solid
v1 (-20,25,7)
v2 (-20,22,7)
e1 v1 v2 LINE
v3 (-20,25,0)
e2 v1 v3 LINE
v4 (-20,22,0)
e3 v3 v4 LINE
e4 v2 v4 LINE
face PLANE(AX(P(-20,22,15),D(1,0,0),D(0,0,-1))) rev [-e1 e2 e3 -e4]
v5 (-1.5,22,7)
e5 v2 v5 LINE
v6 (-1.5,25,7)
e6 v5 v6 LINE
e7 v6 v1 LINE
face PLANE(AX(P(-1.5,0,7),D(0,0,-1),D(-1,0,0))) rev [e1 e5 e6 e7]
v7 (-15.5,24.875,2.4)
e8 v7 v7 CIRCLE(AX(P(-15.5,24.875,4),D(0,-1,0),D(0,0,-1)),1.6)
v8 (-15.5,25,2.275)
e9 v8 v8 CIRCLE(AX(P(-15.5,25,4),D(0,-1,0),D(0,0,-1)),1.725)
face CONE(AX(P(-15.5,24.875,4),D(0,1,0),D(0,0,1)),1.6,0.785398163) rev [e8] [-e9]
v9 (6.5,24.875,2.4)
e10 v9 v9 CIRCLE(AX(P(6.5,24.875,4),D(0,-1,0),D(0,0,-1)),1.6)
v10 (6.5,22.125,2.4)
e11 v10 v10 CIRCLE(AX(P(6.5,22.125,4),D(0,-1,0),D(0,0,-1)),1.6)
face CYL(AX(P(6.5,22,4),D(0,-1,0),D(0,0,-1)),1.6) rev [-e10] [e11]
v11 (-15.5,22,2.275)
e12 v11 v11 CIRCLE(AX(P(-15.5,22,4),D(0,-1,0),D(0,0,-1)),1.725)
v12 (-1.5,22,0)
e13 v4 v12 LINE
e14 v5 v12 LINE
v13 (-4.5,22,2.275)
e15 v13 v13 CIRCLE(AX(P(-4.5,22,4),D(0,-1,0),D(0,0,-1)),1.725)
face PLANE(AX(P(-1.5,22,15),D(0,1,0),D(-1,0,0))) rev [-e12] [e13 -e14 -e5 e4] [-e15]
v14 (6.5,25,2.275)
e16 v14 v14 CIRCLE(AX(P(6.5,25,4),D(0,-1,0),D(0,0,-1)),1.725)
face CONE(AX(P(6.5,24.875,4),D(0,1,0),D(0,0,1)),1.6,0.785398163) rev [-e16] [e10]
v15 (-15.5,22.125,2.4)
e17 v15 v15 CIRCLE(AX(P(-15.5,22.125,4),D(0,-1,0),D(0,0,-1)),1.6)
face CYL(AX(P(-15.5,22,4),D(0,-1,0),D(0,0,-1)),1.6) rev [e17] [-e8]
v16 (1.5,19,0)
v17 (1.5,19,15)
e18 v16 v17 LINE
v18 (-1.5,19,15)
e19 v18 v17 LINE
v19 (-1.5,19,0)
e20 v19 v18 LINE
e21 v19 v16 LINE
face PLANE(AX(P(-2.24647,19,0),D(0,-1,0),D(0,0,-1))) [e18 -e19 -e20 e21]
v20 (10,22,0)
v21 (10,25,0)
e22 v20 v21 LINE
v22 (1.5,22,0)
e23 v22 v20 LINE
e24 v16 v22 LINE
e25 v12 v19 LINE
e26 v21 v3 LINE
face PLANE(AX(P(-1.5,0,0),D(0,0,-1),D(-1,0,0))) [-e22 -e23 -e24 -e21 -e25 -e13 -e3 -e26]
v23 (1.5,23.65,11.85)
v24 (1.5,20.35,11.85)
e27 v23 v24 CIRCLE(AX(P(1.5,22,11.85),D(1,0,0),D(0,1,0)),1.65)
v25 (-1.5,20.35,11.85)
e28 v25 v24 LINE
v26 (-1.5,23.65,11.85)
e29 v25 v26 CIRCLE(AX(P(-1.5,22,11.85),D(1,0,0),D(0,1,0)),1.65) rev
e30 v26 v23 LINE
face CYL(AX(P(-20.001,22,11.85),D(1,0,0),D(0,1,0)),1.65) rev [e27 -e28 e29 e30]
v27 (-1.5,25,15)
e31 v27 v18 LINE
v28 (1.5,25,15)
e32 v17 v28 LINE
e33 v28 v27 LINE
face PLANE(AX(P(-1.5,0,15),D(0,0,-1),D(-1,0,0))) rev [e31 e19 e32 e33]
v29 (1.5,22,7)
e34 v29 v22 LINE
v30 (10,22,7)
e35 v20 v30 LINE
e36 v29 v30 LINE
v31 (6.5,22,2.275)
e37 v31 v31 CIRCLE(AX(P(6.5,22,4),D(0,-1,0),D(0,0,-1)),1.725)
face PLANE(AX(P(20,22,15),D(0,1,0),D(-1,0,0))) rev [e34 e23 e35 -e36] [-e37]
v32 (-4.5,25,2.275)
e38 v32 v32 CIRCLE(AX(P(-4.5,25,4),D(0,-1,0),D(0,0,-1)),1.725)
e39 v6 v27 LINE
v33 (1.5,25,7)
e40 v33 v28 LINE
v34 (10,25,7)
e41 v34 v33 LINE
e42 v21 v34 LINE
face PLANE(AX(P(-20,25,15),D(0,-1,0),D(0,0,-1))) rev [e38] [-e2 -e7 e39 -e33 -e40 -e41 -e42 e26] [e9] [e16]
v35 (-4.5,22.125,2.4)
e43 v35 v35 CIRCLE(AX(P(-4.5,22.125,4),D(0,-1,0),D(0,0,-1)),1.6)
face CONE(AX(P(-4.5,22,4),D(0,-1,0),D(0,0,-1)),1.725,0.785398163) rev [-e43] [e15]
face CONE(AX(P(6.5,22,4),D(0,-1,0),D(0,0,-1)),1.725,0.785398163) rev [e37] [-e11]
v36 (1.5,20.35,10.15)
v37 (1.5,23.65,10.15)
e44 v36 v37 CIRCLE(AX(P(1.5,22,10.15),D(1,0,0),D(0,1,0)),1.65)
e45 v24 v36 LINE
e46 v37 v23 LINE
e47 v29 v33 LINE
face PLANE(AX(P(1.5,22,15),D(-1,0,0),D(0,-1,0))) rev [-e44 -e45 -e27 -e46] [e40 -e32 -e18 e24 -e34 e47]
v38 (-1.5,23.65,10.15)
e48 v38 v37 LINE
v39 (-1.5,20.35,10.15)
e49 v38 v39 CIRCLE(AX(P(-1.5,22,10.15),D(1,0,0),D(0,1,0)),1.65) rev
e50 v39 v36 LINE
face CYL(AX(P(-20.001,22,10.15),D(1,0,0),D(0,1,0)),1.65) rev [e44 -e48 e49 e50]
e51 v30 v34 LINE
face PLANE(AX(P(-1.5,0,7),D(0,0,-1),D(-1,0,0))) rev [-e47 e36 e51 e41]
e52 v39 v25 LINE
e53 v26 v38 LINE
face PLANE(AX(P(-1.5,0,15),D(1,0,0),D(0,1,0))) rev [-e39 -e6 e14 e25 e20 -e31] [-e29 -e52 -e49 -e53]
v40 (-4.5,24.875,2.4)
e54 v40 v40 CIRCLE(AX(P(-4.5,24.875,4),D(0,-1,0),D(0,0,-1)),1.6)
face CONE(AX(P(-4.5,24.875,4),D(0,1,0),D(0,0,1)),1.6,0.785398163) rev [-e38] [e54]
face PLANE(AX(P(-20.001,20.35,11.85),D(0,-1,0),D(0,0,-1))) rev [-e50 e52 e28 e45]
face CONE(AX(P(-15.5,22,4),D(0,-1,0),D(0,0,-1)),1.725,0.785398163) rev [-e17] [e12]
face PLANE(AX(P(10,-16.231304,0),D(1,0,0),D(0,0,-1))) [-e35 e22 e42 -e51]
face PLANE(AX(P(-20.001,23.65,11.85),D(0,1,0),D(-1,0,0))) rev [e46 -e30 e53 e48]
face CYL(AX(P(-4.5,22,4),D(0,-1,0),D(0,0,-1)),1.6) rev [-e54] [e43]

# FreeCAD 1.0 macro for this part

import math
import FreeCAD as App
import Part
import Sketcher

V = App.Vector
Q = App.Units.Quantity


def add_polygon(sketch, points):
    """Adds a closed chain of lines whose ends are joined by coincident constraints."""
    first, n = sketch.GeometryCount, len(points)
    for a, b in zip(points, points[1:] + points[:1]):
        sketch.addGeometry(Part.LineSegment(App.Vector(*a, 0), App.Vector(*b, 0)), False)
    for i in range(n):
        sketch.addConstraint(Sketcher.Constraint("Coincident", first + i, 2, first + (i + 1) % n, 1))

doc = App.newDocument("Part")
body = doc.addObject("PartDesign::Body", "Body")

sketch1 = doc.addObject("Sketcher::SketchObject", "Sketch")
body.addObject(sketch1)
sketch1.AttachmentSupport = (doc.XY_Plane, [""])
sketch1.MapMode = "FlatFace"
add_polygon(sketch1, [(-1.5, 22), (-1.5, 0), (1.5, 0), (1.5, 22), (20, 22), (20, 25), (-20, 25), (-20, 22)])
sketch1.addConstraint(Sketcher.Constraint("Vertical", 0))
sketch1.addConstraint(Sketcher.Constraint("Horizontal", 1))
sketch1.addConstraint(Sketcher.Constraint("Vertical", 2))
sketch1.addConstraint(Sketcher.Constraint("Horizontal", 3))
sketch1.addConstraint(Sketcher.Constraint("Vertical", 4))
sketch1.addConstraint(Sketcher.Constraint("Horizontal", 5))
sketch1.addConstraint(Sketcher.Constraint("Vertical", 6))
sketch1.addConstraint(Sketcher.Constraint("Horizontal", 7))
sketch1.addConstraint(Sketcher.Constraint("Symmetric", 0, 2, 1, 2, -1, 1))
sketch1.addConstraint(Sketcher.Constraint("Symmetric", 3, 2, 6, 2, -2))
sketch1.addConstraint(Sketcher.Constraint("Equal", 1, 4))
sketch1.addConstraint(Sketcher.Constraint("DistanceX", 1, 1, 1, 2, Q("3 mm")))
sketch1.addConstraint(Sketcher.Constraint("DistanceX", 5, 2, 5, 1, Q("40 mm")))
sketch1.addConstraint(Sketcher.Constraint("DistanceY", 0, 2, 0, 1, Q("22 mm")))
pad1 = doc.addObject("PartDesign::Pad", "Pad")
body.addObject(pad1)
pad1.Profile = sketch1
pad1.Length = 15

sketch2 = doc.addObject("Sketcher::SketchObject", "Sketch001")
body.addObject(sketch2)
sketch2.AttachmentSupport = (doc.XY_Plane, [""])
sketch2.MapMode = "FlatFace"
sketch2.AttachmentOffset = App.Placement(V(0, 0, 15), App.Rotation())
add_polygon(sketch2, [(-1.5, 19), (-1.5, 0), (1.5, 0), (1.5, 19)])
add_polygon(sketch2, [(10, 25), (10, 22), (20, 22), (20, 25)])
sketch2.addConstraint(Sketcher.Constraint("Vertical", 0))
sketch2.addConstraint(Sketcher.Constraint("Horizontal", 1))
sketch2.addConstraint(Sketcher.Constraint("Vertical", 2))
sketch2.addConstraint(Sketcher.Constraint("Horizontal", 3))
sketch2.addConstraint(Sketcher.Constraint("Vertical", 4))
sketch2.addConstraint(Sketcher.Constraint("Horizontal", 5))
sketch2.addConstraint(Sketcher.Constraint("Vertical", 6))
sketch2.addConstraint(Sketcher.Constraint("Horizontal", 7))
sketch2.addConstraint(Sketcher.Constraint("Symmetric", 0, 2, 1, 2, -1, 1))
sketch2.addConstraint(Sketcher.Constraint("Equal", 3, 4))
sketch2.addConstraint(Sketcher.Constraint("DistanceX", 1, 1, 1, 2, Q("3 mm")))
sketch2.addConstraint(Sketcher.Constraint("DistanceX", 5, 1, 5, 2, Q("10 mm")))
sketch2.addConstraint(Sketcher.Constraint("DistanceY", 0, 2, 0, 1, Q("19 mm")))
sketch2.addConstraint(Sketcher.Constraint("DistanceX", -1, 1, 4, 2, Q("10 mm")))
sketch2.addConstraint(Sketcher.Constraint("DistanceY", -1, 1, 4, 2, Q("22 mm")))
pocket1 = doc.addObject("PartDesign::Pocket", "Pocket")
body.addObject(pocket1)
pocket1.Profile = sketch2
pocket1.Type = "ThroughAll"

sketch3 = doc.addObject("Sketcher::SketchObject", "Sketch002")
body.addObject(sketch3)
sketch3.AttachmentSupport = (doc.XY_Plane, [""])
sketch3.MapMode = "FlatFace"
sketch3.AttachmentOffset = App.Placement(V(0, 0, 15), App.Rotation())
add_polygon(sketch3, [(-20, 25), (-20, 22), (-1.5, 22), (-1.5, 25)])
add_polygon(sketch3, [(1.5, 25), (1.5, 22), (10, 22), (10, 25)])
sketch3.addConstraint(Sketcher.Constraint("Vertical", 0))
sketch3.addConstraint(Sketcher.Constraint("Horizontal", 1))
sketch3.addConstraint(Sketcher.Constraint("Vertical", 2))
sketch3.addConstraint(Sketcher.Constraint("Horizontal", 3))
sketch3.addConstraint(Sketcher.Constraint("Vertical", 4))
sketch3.addConstraint(Sketcher.Constraint("Horizontal", 5))
sketch3.addConstraint(Sketcher.Constraint("Vertical", 6))
sketch3.addConstraint(Sketcher.Constraint("Horizontal", 7))
sketch3.addConstraint(Sketcher.Constraint("Symmetric", 1, 2, 4, 2, -2))
sketch3.addConstraint(Sketcher.Constraint("Horizontal", 3, 2, 6, 2))
sketch3.addConstraint(Sketcher.Constraint("DistanceY", 0, 2, 0, 1, Q("3 mm")))
sketch3.addConstraint(Sketcher.Constraint("DistanceX", 1, 1, 1, 2, Q("18.5 mm")))
sketch3.addConstraint(Sketcher.Constraint("DistanceX", 5, 1, 5, 2, Q("8.5 mm")))
sketch3.addConstraint(Sketcher.Constraint("DistanceX", 0, 2, -1, 1, Q("20 mm")))
sketch3.addConstraint(Sketcher.Constraint("DistanceY", -1, 1, 0, 2, Q("22 mm")))
pocket2 = doc.addObject("PartDesign::Pocket", "Pocket001")
body.addObject(pocket2)
pocket2.Profile = sketch3
pocket2.Length = 8

sketch4 = doc.addObject("Sketcher::SketchObject", "Sketch003")
body.addObject(sketch4)
sketch4.AttachmentSupport = (doc.YZ_Plane, [""])
sketch4.MapMode = "FlatFace"
sketch4.AttachmentOffset = App.Placement(V(0, 0, -15.5), App.Rotation())
add_polygon(sketch4, [(25, 4), (22, 4), (22, 2.275), (22.125, 2.4), (24.875, 2.4), (25, 2.275)])
sketch4.addGeometry(Part.LineSegment(V(22, 4, 0), V(25, 4, 0)), True)
sketch4.addConstraint(Sketcher.Constraint("Horizontal", 0))
sketch4.addConstraint(Sketcher.Constraint("Vertical", 1))
sketch4.addConstraint(Sketcher.Constraint("Horizontal", 3))
sketch4.addConstraint(Sketcher.Constraint("Vertical", 5))
sketch4.addConstraint(Sketcher.Constraint("Horizontal", 6))
sketch4.addConstraint(Sketcher.Constraint("Coincident", 6, 1, 0, 2))
sketch4.addConstraint(Sketcher.Constraint("Perpendicular", 2, 4))
sketch4.addConstraint(Sketcher.Constraint("Horizontal", 1, 2, 4, 2))
sketch4.addConstraint(Sketcher.Constraint("Vertical", 4, 2, 6, 2))
sketch4.addConstraint(Sketcher.Constraint("Equal", 2, 4))
sketch4.addConstraint(Sketcher.Constraint("DistanceX", 0, 2, 0, 1, Q("3 mm")))
sketch4.addConstraint(Sketcher.Constraint("DistanceX", -1, 1, 0, 2, Q("22 mm")))
sketch4.addConstraint(Sketcher.Constraint("DistanceY", -1, 1, 0, 2, Q("4 mm")))
sketch4.addConstraint(Sketcher.Constraint("DistanceX", 3, 1, 3, 2, Q("2.75 mm")))
sketch4.addConstraint(Sketcher.Constraint("DistanceY", -1, 1, 2, 2, Q("2.4 mm")))
groove = doc.addObject("PartDesign::Groove", "Groove")
body.addObject(groove)
groove.Profile = sketch4
groove.ReferenceAxis = (sketch4, ["Axis0"])
groove.Angle = 360
doc.recompute()

linearpattern = doc.addObject("PartDesign::LinearPattern", "LinearPattern")
body.addObject(linearpattern)
linearpattern.Originals = [groove]
linearpattern.Direction = (doc.X_Axis, [""])
linearpattern.Mode = "offset"
linearpattern.Offset = 22
linearpattern.Occurrences = 2
body.Tip = linearpattern
doc.recompute()

linearpattern2 = doc.addObject("PartDesign::LinearPattern", "LinearPattern001")
body.addObject(linearpattern2)
linearpattern2.Originals = [groove]
linearpattern2.Direction = (doc.X_Axis, [""])
linearpattern2.Mode = "offset"
linearpattern2.Offset = 11
linearpattern2.Occurrences = 2
body.Tip = linearpattern2

sketch5 = doc.addObject("Sketcher::SketchObject", "Sketch004")
body.addObject(sketch5)
sketch5.AttachmentSupport = (doc.YZ_Plane, [""])
sketch5.MapMode = "FlatFace"
sketch5.AttachmentOffset = App.Placement(V(0, 0, 1.5), App.Rotation())
sketch5.addGeometry(Part.LineSegment(V(23.65, 10.15, 0), V(23.65, 11.85, 0)), False)
sketch5.addGeometry(Part.ArcOfCircle(Part.Circle(V(22, 11.85, 0), V(0, 0, 1), 1.65), math.radians(0), math.radians(180)), False)
sketch5.addGeometry(Part.LineSegment(V(20.35, 11.85, 0), V(20.35, 10.15, 0)), False)
sketch5.addGeometry(Part.ArcOfCircle(Part.Circle(V(22, 10.15, 0), V(0, 0, 1), 1.65), math.radians(180), math.radians(360)), False)
sketch5.addConstraint(Sketcher.Constraint("Tangent", 0, 2, 1, 1))
sketch5.addConstraint(Sketcher.Constraint("Tangent", 1, 2, 2, 1))
sketch5.addConstraint(Sketcher.Constraint("Tangent", 2, 2, 3, 1))
sketch5.addConstraint(Sketcher.Constraint("Tangent", 3, 2, 0, 1))
sketch5.addConstraint(Sketcher.Constraint("Vertical", 0))
sketch5.addConstraint(Sketcher.Constraint("Vertical", 2))
sketch5.addConstraint(Sketcher.Constraint("Radius", 1, Q("1.65 mm")))
sketch5.addConstraint(Sketcher.Constraint("DistanceY", 0, 1, 0, 2, Q("1.7 mm")))
sketch5.addConstraint(Sketcher.Constraint("DistanceX", -1, 1, 1, 3, Q("22 mm")))
sketch5.addConstraint(Sketcher.Constraint("DistanceY", -1, 1, 1, 3, Q("11.85 mm")))
pocket3 = doc.addObject("PartDesign::Pocket", "Pocket002")
body.addObject(pocket3)
pocket3.Profile = sketch5
pocket3.Type = "UpToFirst"

doc.recompute()
